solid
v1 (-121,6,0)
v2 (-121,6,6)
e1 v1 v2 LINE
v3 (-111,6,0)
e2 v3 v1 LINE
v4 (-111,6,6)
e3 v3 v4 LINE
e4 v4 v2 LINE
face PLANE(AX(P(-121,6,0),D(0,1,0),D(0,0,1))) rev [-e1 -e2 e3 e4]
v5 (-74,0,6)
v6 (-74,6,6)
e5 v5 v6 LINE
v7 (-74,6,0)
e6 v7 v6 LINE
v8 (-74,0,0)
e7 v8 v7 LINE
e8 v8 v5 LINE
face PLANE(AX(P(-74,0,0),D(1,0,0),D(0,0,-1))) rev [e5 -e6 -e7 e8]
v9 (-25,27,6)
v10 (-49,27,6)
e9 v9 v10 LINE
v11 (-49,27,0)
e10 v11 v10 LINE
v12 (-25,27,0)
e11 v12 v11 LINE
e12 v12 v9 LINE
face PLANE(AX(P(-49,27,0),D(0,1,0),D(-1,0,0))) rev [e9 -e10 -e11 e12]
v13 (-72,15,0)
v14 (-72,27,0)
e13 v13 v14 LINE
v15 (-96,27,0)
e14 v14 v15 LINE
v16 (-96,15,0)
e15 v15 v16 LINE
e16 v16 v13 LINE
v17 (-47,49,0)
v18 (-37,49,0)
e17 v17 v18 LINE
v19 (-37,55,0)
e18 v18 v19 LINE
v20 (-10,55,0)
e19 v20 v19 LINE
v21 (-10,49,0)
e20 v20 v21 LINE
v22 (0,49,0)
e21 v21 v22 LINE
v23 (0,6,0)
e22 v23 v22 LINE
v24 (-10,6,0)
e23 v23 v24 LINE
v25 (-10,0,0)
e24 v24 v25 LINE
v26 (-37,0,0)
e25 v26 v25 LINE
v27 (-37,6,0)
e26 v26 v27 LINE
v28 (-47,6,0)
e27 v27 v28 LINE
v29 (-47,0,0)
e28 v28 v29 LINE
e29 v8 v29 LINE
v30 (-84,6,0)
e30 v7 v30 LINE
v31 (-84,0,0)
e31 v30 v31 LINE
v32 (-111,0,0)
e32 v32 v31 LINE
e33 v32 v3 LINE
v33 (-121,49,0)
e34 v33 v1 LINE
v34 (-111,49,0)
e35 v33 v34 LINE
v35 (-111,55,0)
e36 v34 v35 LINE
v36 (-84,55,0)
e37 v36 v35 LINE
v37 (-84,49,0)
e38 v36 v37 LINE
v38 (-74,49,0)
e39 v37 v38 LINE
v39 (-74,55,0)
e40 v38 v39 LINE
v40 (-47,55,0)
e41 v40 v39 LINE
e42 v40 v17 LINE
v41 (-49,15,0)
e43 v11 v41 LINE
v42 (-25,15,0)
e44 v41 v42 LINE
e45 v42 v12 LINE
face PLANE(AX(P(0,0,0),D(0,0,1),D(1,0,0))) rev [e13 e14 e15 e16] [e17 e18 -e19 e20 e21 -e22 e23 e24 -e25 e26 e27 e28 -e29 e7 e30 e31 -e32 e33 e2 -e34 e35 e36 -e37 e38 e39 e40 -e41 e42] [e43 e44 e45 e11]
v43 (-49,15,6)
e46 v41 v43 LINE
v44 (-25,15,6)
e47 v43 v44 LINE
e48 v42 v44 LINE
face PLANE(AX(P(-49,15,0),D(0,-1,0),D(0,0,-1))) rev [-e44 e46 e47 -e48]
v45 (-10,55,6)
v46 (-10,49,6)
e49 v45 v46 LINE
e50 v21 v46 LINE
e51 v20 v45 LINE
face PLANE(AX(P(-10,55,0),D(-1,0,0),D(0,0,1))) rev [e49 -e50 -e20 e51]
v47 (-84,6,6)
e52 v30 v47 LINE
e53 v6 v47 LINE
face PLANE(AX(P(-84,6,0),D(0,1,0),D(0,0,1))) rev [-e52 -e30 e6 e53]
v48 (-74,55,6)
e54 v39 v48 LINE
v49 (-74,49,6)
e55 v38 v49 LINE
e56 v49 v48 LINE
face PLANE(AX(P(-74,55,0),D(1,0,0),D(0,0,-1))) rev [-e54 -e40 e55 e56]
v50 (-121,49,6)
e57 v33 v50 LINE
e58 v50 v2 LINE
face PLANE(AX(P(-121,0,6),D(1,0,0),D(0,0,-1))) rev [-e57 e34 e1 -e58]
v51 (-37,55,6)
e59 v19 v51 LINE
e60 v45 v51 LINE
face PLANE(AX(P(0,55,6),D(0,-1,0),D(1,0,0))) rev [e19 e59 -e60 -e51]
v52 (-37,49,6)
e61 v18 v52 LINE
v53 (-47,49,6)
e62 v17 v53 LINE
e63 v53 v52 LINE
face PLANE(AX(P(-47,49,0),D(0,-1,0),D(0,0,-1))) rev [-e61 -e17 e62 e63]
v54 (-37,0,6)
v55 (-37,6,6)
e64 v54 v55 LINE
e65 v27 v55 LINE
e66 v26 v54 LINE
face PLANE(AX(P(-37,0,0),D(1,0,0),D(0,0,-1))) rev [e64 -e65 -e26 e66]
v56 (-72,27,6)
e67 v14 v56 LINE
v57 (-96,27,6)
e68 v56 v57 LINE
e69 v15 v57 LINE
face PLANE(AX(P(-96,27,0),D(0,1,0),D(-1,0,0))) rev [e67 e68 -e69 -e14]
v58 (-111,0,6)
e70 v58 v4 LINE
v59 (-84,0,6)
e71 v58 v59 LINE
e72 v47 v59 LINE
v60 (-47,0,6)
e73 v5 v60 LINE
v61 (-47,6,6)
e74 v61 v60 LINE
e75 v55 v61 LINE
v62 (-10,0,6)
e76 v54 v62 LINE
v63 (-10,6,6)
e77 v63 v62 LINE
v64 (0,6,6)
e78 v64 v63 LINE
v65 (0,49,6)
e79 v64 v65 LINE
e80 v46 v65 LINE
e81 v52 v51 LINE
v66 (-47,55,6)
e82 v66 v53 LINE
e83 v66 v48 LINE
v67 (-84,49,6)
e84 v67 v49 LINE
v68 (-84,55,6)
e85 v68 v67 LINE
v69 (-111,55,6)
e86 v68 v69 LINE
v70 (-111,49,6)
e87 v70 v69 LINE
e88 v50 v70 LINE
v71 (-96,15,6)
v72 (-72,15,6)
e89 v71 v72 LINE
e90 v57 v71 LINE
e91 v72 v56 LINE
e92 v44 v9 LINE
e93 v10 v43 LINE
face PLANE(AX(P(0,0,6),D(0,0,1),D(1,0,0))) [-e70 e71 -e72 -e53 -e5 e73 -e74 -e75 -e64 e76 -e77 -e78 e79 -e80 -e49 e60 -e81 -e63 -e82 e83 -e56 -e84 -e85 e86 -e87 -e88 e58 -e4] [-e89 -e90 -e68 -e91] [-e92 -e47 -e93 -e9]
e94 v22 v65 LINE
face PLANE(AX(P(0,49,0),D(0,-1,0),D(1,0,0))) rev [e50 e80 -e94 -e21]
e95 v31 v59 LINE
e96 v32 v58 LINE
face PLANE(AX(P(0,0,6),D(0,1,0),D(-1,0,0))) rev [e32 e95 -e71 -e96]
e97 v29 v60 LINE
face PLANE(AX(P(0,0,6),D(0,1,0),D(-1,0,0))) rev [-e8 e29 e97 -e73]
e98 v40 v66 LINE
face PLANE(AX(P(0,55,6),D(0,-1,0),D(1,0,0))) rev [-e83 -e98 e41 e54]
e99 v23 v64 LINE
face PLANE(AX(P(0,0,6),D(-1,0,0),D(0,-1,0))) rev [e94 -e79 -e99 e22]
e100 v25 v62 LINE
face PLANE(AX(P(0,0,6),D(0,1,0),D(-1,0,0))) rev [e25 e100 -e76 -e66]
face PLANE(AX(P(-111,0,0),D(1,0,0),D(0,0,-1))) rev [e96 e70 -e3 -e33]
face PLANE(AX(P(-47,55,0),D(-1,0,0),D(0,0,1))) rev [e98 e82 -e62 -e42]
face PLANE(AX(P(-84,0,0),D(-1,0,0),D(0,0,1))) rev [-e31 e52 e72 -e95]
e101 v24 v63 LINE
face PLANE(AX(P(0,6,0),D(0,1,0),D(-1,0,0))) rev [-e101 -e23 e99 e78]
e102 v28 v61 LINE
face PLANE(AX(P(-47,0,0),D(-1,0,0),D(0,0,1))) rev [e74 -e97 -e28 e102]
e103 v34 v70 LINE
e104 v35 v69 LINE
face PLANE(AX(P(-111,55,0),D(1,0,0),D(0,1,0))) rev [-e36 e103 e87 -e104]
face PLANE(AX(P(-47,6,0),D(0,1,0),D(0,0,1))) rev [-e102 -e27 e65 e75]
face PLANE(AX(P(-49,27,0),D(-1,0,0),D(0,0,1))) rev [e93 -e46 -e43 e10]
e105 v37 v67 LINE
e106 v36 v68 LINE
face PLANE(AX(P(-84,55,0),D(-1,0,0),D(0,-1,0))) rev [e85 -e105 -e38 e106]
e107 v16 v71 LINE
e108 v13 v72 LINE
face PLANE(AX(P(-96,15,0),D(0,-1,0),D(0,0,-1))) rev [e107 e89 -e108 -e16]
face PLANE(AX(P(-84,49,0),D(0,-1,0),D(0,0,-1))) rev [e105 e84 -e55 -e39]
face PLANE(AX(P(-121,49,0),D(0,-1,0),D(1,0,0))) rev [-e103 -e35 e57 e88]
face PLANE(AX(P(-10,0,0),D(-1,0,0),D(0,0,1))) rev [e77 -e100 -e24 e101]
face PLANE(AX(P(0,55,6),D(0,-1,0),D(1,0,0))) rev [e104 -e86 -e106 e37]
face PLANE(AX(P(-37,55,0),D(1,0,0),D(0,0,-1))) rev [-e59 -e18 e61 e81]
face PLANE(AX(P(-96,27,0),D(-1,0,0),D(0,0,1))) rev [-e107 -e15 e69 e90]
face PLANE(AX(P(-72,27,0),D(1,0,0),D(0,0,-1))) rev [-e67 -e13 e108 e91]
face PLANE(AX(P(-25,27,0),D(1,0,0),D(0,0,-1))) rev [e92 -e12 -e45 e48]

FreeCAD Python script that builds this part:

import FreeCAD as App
import Part
import Sketcher
Q = App.Units.Quantity


def add_polygon(sketch, points):
    """Adds a closed chain of lines whose ends are joined by coincident constraints."""
    first, n = sketch.GeometryCount, len(points)
    for a, b in zip(points, points[1:] + points[:1]):
        sketch.addGeometry(Part.LineSegment(App.Vector(*a, 0), App.Vector(*b, 0)), False)
    for i in range(n):
        sketch.addConstraint(Sketcher.Constraint("Coincident", first + i, 2, first + (i + 1) % n, 1))

doc = App.newDocument("Part")
body = doc.addObject("PartDesign::Body", "Body")

# Sketch on XY plane
sketch1 = doc.addObject("Sketcher::SketchObject", "Sketch")
body.addObject(sketch1)
sketch1.AttachmentSupport = (doc.XY_Plane, [""])
sketch1.MapMode = "FlatFace"
add_polygon(sketch1, [(-121, 55), (-121, 0), (0, 0), (0, 55)])  # lines 0-3
sketch1.addConstraint(Sketcher.Constraint("Vertical", 0))
sketch1.addConstraint(Sketcher.Constraint("Horizontal", 1))
sketch1.addConstraint(Sketcher.Constraint("Vertical", 2))
sketch1.addConstraint(Sketcher.Constraint("Horizontal", 3))
sketch1.addConstraint(Sketcher.Constraint("Coincident", 1, 2, -1, 1))
sketch1.addConstraint(Sketcher.Constraint("DistanceX", 1, 1, 1, 2, Q("121 mm")))
sketch1.addConstraint(Sketcher.Constraint("DistanceY", 0, 2, 0, 1, Q("55 mm")))
pad1 = doc.addObject("PartDesign::Pad", "Pad")
body.addObject(pad1)
pad1.Profile = sketch1
pad1.Length = 6

# Sketch on XY plane
sketch2 = doc.addObject("Sketcher::SketchObject", "Sketch001")
body.addObject(sketch2)
sketch2.AttachmentSupport = (doc.XY_Plane, [""])
sketch2.MapMode = "FlatFace"
sketch2.AttachmentOffset = App.Placement(App.Vector(0, 0, 6), App.Rotation())
add_polygon(sketch2, [(-121, 55), (-121, 49), (-111, 49), (-111, 55)])  # lines 0-3
add_polygon(sketch2, [(-84, 55), (-84, 49), (-74, 49), (-74, 55)])  # lines 4-7
add_polygon(sketch2, [(-47, 55), (-47, 49), (-37, 49), (-37, 55)])  # lines 8-11
add_polygon(sketch2, [(-10, 55), (-10, 49), (0, 49), (0, 55)])  # lines 12-15
add_polygon(sketch2, [(-121, 6), (-121, 0), (-111, 0), (-111, 6)])  # lines 16-19
add_polygon(sketch2, [(-84, 6), (-84, 0), (-74, 0), (-74, 6)])  # lines 20-23
add_polygon(sketch2, [(-47, 6), (-47, 0), (-37, 0), (-37, 6)])  # lines 24-27
add_polygon(sketch2, [(-10, 6), (-10, 0), (0, 0), (0, 6)])  # lines 28-31
sketch2.addConstraint(Sketcher.Constraint("Vertical", 0))
sketch2.addConstraint(Sketcher.Constraint("Horizontal", 1))
sketch2.addConstraint(Sketcher.Constraint("Vertical", 2))
sketch2.addConstraint(Sketcher.Constraint("Horizontal", 3))
sketch2.addConstraint(Sketcher.Constraint("Vertical", 4))
sketch2.addConstraint(Sketcher.Constraint("Horizontal", 5))
sketch2.addConstraint(Sketcher.Constraint("Vertical", 6))
sketch2.addConstraint(Sketcher.Constraint("Horizontal", 7))
sketch2.addConstraint(Sketcher.Constraint("Vertical", 8))
sketch2.addConstraint(Sketcher.Constraint("Horizontal", 9))
sketch2.addConstraint(Sketcher.Constraint("Vertical", 10))
sketch2.addConstraint(Sketcher.Constraint("Horizontal", 11))
sketch2.addConstraint(Sketcher.Constraint("Vertical", 12))
sketch2.addConstraint(Sketcher.Constraint("Horizontal", 13))
sketch2.addConstraint(Sketcher.Constraint("Vertical", 14))
sketch2.addConstraint(Sketcher.Constraint("Horizontal", 15))
sketch2.addConstraint(Sketcher.Constraint("Vertical", 16))
sketch2.addConstraint(Sketcher.Constraint("Horizontal", 17))
sketch2.addConstraint(Sketcher.Constraint("Vertical", 18))
sketch2.addConstraint(Sketcher.Constraint("Horizontal", 19))
sketch2.addConstraint(Sketcher.Constraint("Vertical", 20))
sketch2.addConstraint(Sketcher.Constraint("Horizontal", 21))
sketch2.addConstraint(Sketcher.Constraint("Vertical", 22))
sketch2.addConstraint(Sketcher.Constraint("Horizontal", 23))
sketch2.addConstraint(Sketcher.Constraint("Vertical", 24))
sketch2.addConstraint(Sketcher.Constraint("Horizontal", 25))
sketch2.addConstraint(Sketcher.Constraint("Vertical", 26))
sketch2.addConstraint(Sketcher.Constraint("Horizontal", 27))
sketch2.addConstraint(Sketcher.Constraint("Vertical", 28))
sketch2.addConstraint(Sketcher.Constraint("Horizontal", 29))
sketch2.addConstraint(Sketcher.Constraint("Vertical", 30))
sketch2.addConstraint(Sketcher.Constraint("Horizontal", 31))
sketch2.addConstraint(Sketcher.Constraint("Coincident", 29, 2, -1, 1))
sketch2.addConstraint(Sketcher.Constraint("PointOnObject", 13, 2, -2))
sketch2.addConstraint(Sketcher.Constraint("PointOnObject", 16, 2, -1))
sketch2.addConstraint(Sketcher.Constraint("PointOnObject", 20, 2, -1))
sketch2.addConstraint(Sketcher.Constraint("PointOnObject", 24, 2, -1))
sketch2.addConstraint(Sketcher.Constraint("Horizontal", 1, 2, 4, 2))
sketch2.addConstraint(Sketcher.Constraint("Horizontal", 3, 2, 6, 2))
sketch2.addConstraint(Sketcher.Constraint("Horizontal", 5, 2, 8, 2))
sketch2.addConstraint(Sketcher.Constraint("Horizontal", 7, 2, 10, 2))
sketch2.addConstraint(Sketcher.Constraint("Horizontal", 9, 2, 12, 2))
sketch2.addConstraint(Sketcher.Constraint("Horizontal", 11, 2, 14, 2))
sketch2.addConstraint(Sketcher.Constraint("Horizontal", 19, 2, 22, 2))
sketch2.addConstraint(Sketcher.Constraint("Horizontal", 23, 2, 26, 2))
sketch2.addConstraint(Sketcher.Constraint("Horizontal", 27, 2, 30, 2))
sketch2.addConstraint(Sketcher.Constraint("Vertical", 3, 2, 16, 2))
sketch2.addConstraint(Sketcher.Constraint("Vertical", 2, 2, 17, 2))
sketch2.addConstraint(Sketcher.Constraint("Vertical", 7, 2, 20, 2))
sketch2.addConstraint(Sketcher.Constraint("Vertical", 6, 2, 21, 2))
sketch2.addConstraint(Sketcher.Constraint("Vertical", 11, 2, 24, 2))
sketch2.addConstraint(Sketcher.Constraint("Vertical", 10, 2, 25, 2))
sketch2.addConstraint(Sketcher.Constraint("Vertical", 15, 2, 28, 2))
sketch2.addConstraint(Sketcher.Constraint("Equal", 3, 5))
sketch2.addConstraint(Sketcher.Constraint("Equal", 7, 9))
sketch2.addConstraint(Sketcher.Constraint("Equal", 11, 13))
sketch2.addConstraint(Sketcher.Constraint("Equal", 14, 16))
sketch2.addConstraint(Sketcher.Constraint("DistanceX", 1, 1, 1, 2, Q("10 mm")))
sketch2.addConstraint(Sketcher.Constraint("DistanceY", 0, 2, 0, 1, Q("6 mm")))
sketch2.addConstraint(Sketcher.Constraint("DistanceX", 0, 2, -1, 1, Q("121 mm")))
sketch2.addConstraint(Sketcher.Constraint("DistanceY", -1, 1, 0, 2, Q("49 mm")))
sketch2.addConstraint(Sketcher.Constraint("DistanceX", 4, 2, -1, 1, Q("84 mm")))
sketch2.addConstraint(Sketcher.Constraint("DistanceX", 8, 2, -1, 1, Q("47 mm")))
pocket1 = doc.addObject("PartDesign::Pocket", "Pocket")
body.addObject(pocket1)
pocket1.Profile = sketch2
pocket1.Type = "ThroughAll"

# Sketch on XY plane
sketch3 = doc.addObject("Sketcher::SketchObject", "Sketch002")
body.addObject(sketch3)
sketch3.AttachmentSupport = (doc.XY_Plane, [""])
sketch3.MapMode = "FlatFace"
sketch3.AttachmentOffset = App.Placement(App.Vector(0, 0, 6), App.Rotation())
add_polygon(sketch3, [(-96, 27), (-96, 15), (-72, 15), (-72, 27)])  # lines 0-3
add_polygon(sketch3, [(-49, 27), (-49, 15), (-25, 15), (-25, 27)])  # lines 4-7
sketch3.addConstraint(Sketcher.Constraint("Vertical", 0))
sketch3.addConstraint(Sketcher.Constraint("Horizontal", 1))
sketch3.addConstraint(Sketcher.Constraint("Vertical", 2))
sketch3.addConstraint(Sketcher.Constraint("Horizontal", 3))
sketch3.addConstraint(Sketcher.Constraint("Vertical", 4))
sketch3.addConstraint(Sketcher.Constraint("Horizontal", 5))
sketch3.addConstraint(Sketcher.Constraint("Vertical", 6))
sketch3.addConstraint(Sketcher.Constraint("Horizontal", 7))
sketch3.addConstraint(Sketcher.Constraint("Horizontal", 1, 2, 4, 2))
sketch3.addConstraint(Sketcher.Constraint("Horizontal", 3, 2, 6, 2))
sketch3.addConstraint(Sketcher.Constraint("Equal", 3, 5))
sketch3.addConstraint(Sketcher.Constraint("DistanceX", 1, 1, 1, 2, Q("24 mm")))
sketch3.addConstraint(Sketcher.Constraint("DistanceY", 0, 2, 0, 1, Q("12 mm")))
sketch3.addConstraint(Sketcher.Constraint("DistanceX", 0, 2, -1, 1, Q("96 mm")))
sketch3.addConstraint(Sketcher.Constraint("DistanceY", -1, 1, 0, 2, Q("15 mm")))
sketch3.addConstraint(Sketcher.Constraint("DistanceX", 4, 2, -1, 1, Q("49 mm")))
pocket2 = doc.addObject("PartDesign::Pocket", "Pocket001")
body.addObject(pocket2)
pocket2.Profile = sketch3
pocket2.Length = 6

doc.recompute()
